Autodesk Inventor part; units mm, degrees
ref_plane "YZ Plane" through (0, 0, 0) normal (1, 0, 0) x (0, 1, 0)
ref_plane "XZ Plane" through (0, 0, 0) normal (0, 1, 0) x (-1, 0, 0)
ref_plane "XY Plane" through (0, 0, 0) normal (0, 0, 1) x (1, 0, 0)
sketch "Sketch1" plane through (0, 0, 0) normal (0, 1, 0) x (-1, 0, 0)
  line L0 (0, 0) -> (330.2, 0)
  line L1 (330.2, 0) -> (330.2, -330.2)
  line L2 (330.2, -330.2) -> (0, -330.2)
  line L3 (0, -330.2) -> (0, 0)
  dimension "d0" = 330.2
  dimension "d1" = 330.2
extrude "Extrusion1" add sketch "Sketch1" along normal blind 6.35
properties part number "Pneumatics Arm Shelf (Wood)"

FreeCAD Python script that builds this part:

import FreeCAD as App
import Part
import Sketcher

V = App.Vector
Q = App.Units.Quantity

doc = App.newDocument("Part")
body = doc.addObject("PartDesign::Body", "Body")

# Sketch on XZ plane
sketch1 = body.newObject("Sketcher::SketchObject", "Sketch")
sketch1.AttachmentSupport = (doc.getObject("XZ_Plane"), [""])
sketch1.MapMode = "FlatFace"
sketch1.addGeometry([
    Part.LineSegment(V(-330.2, 0, 0), V(0, 0, 0)),
    Part.LineSegment(V(0, 0, 0), V(0, -330.2, 0)),
    Part.LineSegment(V(0, -330.2, 0), V(-330.2, -330.2, 0)),
    Part.LineSegment(V(-330.2, -330.2, 0), V(-330.2, 0, 0)),
], False)
sketch1.addConstraint([
    Sketcher.Constraint("Coincident", 0, 2, 1, 1),
    Sketcher.Constraint("Coincident", 1, 2, 2, 1),
    Sketcher.Constraint("Coincident", 2, 2, 3, 1),
    Sketcher.Constraint("Coincident", 3, 2, 0, 1),
    Sketcher.Constraint("Horizontal", 0),
    Sketcher.Constraint("Vertical", 1),
    Sketcher.Constraint("Horizontal", 2),
    Sketcher.Constraint("Vertical", 3),
    Sketcher.Constraint("Coincident", 0, 2, -1, 1),
    Sketcher.Constraint("Equal", 2, 1),
    Sketcher.Constraint("DistanceX", 0, 1, 0, 2, Q("13 in")),
])
pad1 = body.newObject("PartDesign::Pad", "Pad")
pad1.Profile = sketch1
pad1.Length = Q("0.25 in")
pad1.Reversed = True

doc.recompute()
